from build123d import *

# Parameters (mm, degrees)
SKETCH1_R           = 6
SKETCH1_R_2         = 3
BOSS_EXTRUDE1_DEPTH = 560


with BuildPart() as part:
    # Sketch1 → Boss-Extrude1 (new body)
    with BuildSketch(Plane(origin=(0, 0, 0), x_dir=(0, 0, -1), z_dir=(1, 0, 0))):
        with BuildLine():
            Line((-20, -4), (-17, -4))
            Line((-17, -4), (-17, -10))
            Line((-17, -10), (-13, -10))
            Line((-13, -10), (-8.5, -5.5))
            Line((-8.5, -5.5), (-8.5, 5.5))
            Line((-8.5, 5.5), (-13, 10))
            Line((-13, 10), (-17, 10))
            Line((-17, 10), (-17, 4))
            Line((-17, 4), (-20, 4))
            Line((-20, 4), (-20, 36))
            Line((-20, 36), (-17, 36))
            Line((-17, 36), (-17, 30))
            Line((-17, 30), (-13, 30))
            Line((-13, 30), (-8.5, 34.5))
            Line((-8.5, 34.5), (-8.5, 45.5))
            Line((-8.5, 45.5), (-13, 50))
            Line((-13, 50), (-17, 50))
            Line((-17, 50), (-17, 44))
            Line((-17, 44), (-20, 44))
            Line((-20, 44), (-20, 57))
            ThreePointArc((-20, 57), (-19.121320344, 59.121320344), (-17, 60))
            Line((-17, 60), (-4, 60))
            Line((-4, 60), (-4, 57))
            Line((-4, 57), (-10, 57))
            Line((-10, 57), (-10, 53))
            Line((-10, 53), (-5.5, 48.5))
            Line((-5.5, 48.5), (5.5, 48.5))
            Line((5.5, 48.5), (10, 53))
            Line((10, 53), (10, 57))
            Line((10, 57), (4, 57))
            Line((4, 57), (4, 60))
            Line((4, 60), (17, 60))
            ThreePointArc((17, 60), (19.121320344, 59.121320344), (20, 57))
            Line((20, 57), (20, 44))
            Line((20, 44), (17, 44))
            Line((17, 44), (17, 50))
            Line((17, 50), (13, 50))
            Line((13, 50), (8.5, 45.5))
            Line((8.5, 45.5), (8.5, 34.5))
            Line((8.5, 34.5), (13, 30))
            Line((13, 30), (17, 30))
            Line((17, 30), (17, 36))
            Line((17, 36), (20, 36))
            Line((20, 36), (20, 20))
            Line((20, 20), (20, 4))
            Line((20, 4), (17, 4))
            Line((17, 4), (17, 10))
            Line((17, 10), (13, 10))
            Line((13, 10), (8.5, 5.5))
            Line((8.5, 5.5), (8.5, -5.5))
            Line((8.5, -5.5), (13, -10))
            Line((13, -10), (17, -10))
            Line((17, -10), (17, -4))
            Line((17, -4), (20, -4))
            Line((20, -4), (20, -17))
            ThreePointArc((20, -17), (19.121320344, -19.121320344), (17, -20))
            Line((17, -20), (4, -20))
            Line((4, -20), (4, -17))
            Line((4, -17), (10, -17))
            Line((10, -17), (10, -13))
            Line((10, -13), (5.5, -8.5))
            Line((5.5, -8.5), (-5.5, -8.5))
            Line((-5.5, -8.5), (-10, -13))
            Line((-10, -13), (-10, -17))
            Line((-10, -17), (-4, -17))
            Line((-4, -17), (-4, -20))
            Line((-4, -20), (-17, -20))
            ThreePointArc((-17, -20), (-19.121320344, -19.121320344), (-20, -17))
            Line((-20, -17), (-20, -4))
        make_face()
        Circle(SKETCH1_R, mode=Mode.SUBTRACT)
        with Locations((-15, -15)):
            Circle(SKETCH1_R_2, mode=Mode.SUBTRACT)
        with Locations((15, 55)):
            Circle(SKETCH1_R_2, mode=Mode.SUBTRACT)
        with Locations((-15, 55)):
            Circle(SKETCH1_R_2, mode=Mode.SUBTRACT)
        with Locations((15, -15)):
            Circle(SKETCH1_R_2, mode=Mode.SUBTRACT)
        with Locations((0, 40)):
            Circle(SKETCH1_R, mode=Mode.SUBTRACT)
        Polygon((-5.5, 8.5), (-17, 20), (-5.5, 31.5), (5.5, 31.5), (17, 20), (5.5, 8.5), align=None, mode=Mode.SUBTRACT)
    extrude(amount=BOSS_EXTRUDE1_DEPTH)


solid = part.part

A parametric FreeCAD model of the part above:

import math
import FreeCAD as App
import Part
import Sketcher
from FreeCAD import Vector


def add_polygon(sketch, points):
    """Adds a closed chain of lines whose ends are joined by coincident constraints."""
    first, n = sketch.GeometryCount, len(points)
    for a, b in zip(points, points[1:] + points[:1]):
        sketch.addGeometry(Part.LineSegment(App.Vector(*a, 0), App.Vector(*b, 0)), False)
    for i in range(n):
        sketch.addConstraint(Sketcher.Constraint("Coincident", first + i, 2, first + (i + 1) % n, 1))

doc = App.newDocument("Part")
params = doc.addObject("Spreadsheet::Sheet", "Params")
for row, (alias, value) in enumerate([
    ("sketch1_diameter", "6 mm"),
    ("sketch1_diameter2", "12 mm"),
    ("sketch1_width", "13 mm"),
    ("sketch1_width2", "4 mm"),
    ("sketch1_width3", "11 mm"),
    ("pad1_length", "560 mm"),
], start=1):
    params.set(f"A{row}", alias)
    params.set(f"B{row}", "=" + value)
    params.setAlias(f"B{row}", alias)

body = doc.addObject("PartDesign::Body", "Body")

# Sketch on YZ plane
sketch1 = body.newObject("Sketcher::SketchObject", "Sketch")
sketch1.AttachmentSupport = (doc.getObject("YZ_Plane"), [""])
sketch1.MapMode = "FlatFace"
sketch1.addGeometry(Part.LineSegment(Vector(-4, 17, 0), Vector(-4, 20, 0)), False)  # 0
sketch1.addGeometry(Part.LineSegment(Vector(-4, 20, 0), Vector(-17, 20, 0)), False)  # 1
sketch1.addGeometry(Part.ArcOfCircle(Part.Circle(Vector(-17, 17, 0), Vector(0, 0, 1), 3), math.radians(90), math.radians(180)), False)  # 2
sketch1.addGeometry(Part.LineSegment(Vector(-20, 17, 0), Vector(-20, 4, 0)), False)  # 3
sketch1.addGeometry(Part.LineSegment(Vector(-20, 4, 0), Vector(-17, 4, 0)), False)  # 4
sketch1.addGeometry(Part.LineSegment(Vector(-17, 4, 0), Vector(-17, 10, 0)), False)  # 5
sketch1.addGeometry(Part.LineSegment(Vector(-17, 10, 0), Vector(-13, 10, 0)), False)  # 6
sketch1.addGeometry(Part.LineSegment(Vector(-13, 10, 0), Vector(-8.5, 5.5, 0)), False)  # 7
sketch1.addGeometry(Part.LineSegment(Vector(-8.5, 5.5, 0), Vector(-8.5, -5.5, 0)), False)  # 8
sketch1.addGeometry(Part.LineSegment(Vector(-8.5, -5.5, 0), Vector(-13, -10, 0)), False)  # 9
sketch1.addGeometry(Part.LineSegment(Vector(-13, -10, 0), Vector(-17, -10, 0)), False)  # 10
sketch1.addGeometry(Part.LineSegment(Vector(-17, -10, 0), Vector(-17, -4, 0)), False)  # 11
sketch1.addGeometry(Part.LineSegment(Vector(-17, -4, 0), Vector(-20, -4, 0)), False)  # 12
sketch1.addGeometry(Part.LineSegment(Vector(-20, -4, 0), Vector(-20, -17, 0)), False)  # 13
sketch1.addGeometry(Part.ArcOfCircle(Part.Circle(Vector(-17, -17, 0), Vector(0, 0, 1), 3), math.radians(180), math.radians(270)), False)  # 14
sketch1.addGeometry(Part.LineSegment(Vector(-17, -20, 0), Vector(-4, -20, 0)), False)  # 15
sketch1.addGeometry(Part.LineSegment(Vector(-4, -20, 0), Vector(-4, -17, 0)), False)  # 16
sketch1.addGeometry(Part.LineSegment(Vector(-4, -17, 0), Vector(-10, -17, 0)), False)  # 17
sketch1.addGeometry(Part.LineSegment(Vector(-10, -17, 0), Vector(-10, -13, 0)), False)  # 18
sketch1.addGeometry(Part.LineSegment(Vector(-10, -13, 0), Vector(-5.5, -8.5, 0)), False)  # 19
sketch1.addGeometry(Part.LineSegment(Vector(-5.5, -8.5, 0), Vector(5.5, -8.5, 0)), False)  # 20
sketch1.addGeometry(Part.LineSegment(Vector(5.5, -8.5, 0), Vector(10, -13, 0)), False)  # 21
sketch1.addGeometry(Part.LineSegment(Vector(10, -13, 0), Vector(10, -17, 0)), False)  # 22
sketch1.addGeometry(Part.LineSegment(Vector(10, -17, 0), Vector(4, -17, 0)), False)  # 23
sketch1.addGeometry(Part.LineSegment(Vector(4, -17, 0), Vector(4, -20, 0)), False)  # 24
sketch1.addGeometry(Part.LineSegment(Vector(4, -20, 0), Vector(36, -20, 0)), False)  # 25
sketch1.addGeometry(Part.LineSegment(Vector(36, -20, 0), Vector(36, -17, 0)), False)  # 26
sketch1.addGeometry(Part.LineSegment(Vector(36, -17, 0), Vector(30, -17, 0)), False)  # 27
sketch1.addGeometry(Part.LineSegment(Vector(30, -17, 0), Vector(30, -13, 0)), False)  # 28
sketch1.addGeometry(Part.LineSegment(Vector(30, -13, 0), Vector(34.5, -8.5, 0)), False)  # 29
sketch1.addGeometry(Part.LineSegment(Vector(34.5, -8.5, 0), Vector(45.5, -8.5, 0)), False)  # 30
sketch1.addGeometry(Part.LineSegment(Vector(45.5, -8.5, 0), Vector(50, -13, 0)), False)  # 31
sketch1.addGeometry(Part.LineSegment(Vector(50, -13, 0), Vector(50, -17, 0)), False)  # 32
sketch1.addGeometry(Part.LineSegment(Vector(50, -17, 0), Vector(44, -17, 0)), False)  # 33
sketch1.addGeometry(Part.LineSegment(Vector(44, -17, 0), Vector(44, -20, 0)), False)  # 34
sketch1.addGeometry(Part.LineSegment(Vector(44, -20, 0), Vector(57, -20, 0)), False)  # 35
sketch1.addGeometry(Part.ArcOfCircle(Part.Circle(Vector(57, -17, 0), Vector(0, 0, 1), 3), math.radians(-90), math.radians(0)), False)  # 36
sketch1.addGeometry(Part.LineSegment(Vector(60, -17, 0), Vector(60, -4, 0)), False)  # 37
sketch1.addGeometry(Part.LineSegment(Vector(60, -4, 0), Vector(57, -4, 0)), False)  # 38
sketch1.addGeometry(Part.LineSegment(Vector(57, -4, 0), Vector(57, -10, 0)), False)  # 39
sketch1.addGeometry(Part.LineSegment(Vector(57, -10, 0), Vector(53, -10, 0)), False)  # 40
sketch1.addGeometry(Part.LineSegment(Vector(53, -10, 0), Vector(48.5, -5.5, 0)), False)  # 41
sketch1.addGeometry(Part.LineSegment(Vector(48.5, -5.5, 0), Vector(48.5, 5.5, 0)), False)  # 42
sketch1.addGeometry(Part.LineSegment(Vector(48.5, 5.5, 0), Vector(53, 10, 0)), False)  # 43
sketch1.addGeometry(Part.LineSegment(Vector(53, 10, 0), Vector(57, 10, 0)), False)  # 44
sketch1.addGeometry(Part.LineSegment(Vector(57, 10, 0), Vector(57, 4, 0)), False)  # 45
sketch1.addGeometry(Part.LineSegment(Vector(57, 4, 0), Vector(60, 4, 0)), False)  # 46
sketch1.addGeometry(Part.LineSegment(Vector(60, 4, 0), Vector(60, 17, 0)), False)  # 47
sketch1.addGeometry(Part.ArcOfCircle(Part.Circle(Vector(57, 17, 0), Vector(0, 0, 1), 3), math.radians(0), math.radians(90)), False)  # 48
sketch1.addGeometry(Part.LineSegment(Vector(57, 20, 0), Vector(44, 20, 0)), False)  # 49
sketch1.addGeometry(Part.LineSegment(Vector(44, 20, 0), Vector(44, 17, 0)), False)  # 50
sketch1.addGeometry(Part.LineSegment(Vector(44, 17, 0), Vector(50, 17, 0)), False)  # 51
sketch1.addGeometry(Part.LineSegment(Vector(50, 17, 0), Vector(50, 13, 0)), False)  # 52
sketch1.addGeometry(Part.LineSegment(Vector(50, 13, 0), Vector(45.5, 8.5, 0)), False)  # 53
sketch1.addGeometry(Part.LineSegment(Vector(45.5, 8.5, 0), Vector(34.5, 8.5, 0)), False)  # 54
sketch1.addGeometry(Part.LineSegment(Vector(34.5, 8.5, 0), Vector(30, 13, 0)), False)  # 55
sketch1.addGeometry(Part.LineSegment(Vector(30, 13, 0), Vector(30, 17, 0)), False)  # 56
sketch1.addGeometry(Part.LineSegment(Vector(30, 17, 0), Vector(36, 17, 0)), False)  # 57
sketch1.addGeometry(Part.LineSegment(Vector(36, 17, 0), Vector(36, 20, 0)), False)  # 58
sketch1.addGeometry(Part.LineSegment(Vector(36, 20, 0), Vector(4, 20, 0)), False)  # 59
sketch1.addGeometry(Part.LineSegment(Vector(4, 20, 0), Vector(4, 17, 0)), False)  # 60
sketch1.addGeometry(Part.LineSegment(Vector(4, 17, 0), Vector(10, 17, 0)), False)  # 61
sketch1.addGeometry(Part.LineSegment(Vector(10, 17, 0), Vector(10, 13, 0)), False)  # 62
sketch1.addGeometry(Part.LineSegment(Vector(10, 13, 0), Vector(5.5, 8.5, 0)), False)  # 63
sketch1.addGeometry(Part.LineSegment(Vector(5.5, 8.5, 0), Vector(-5.5, 8.5, 0)), False)  # 64
sketch1.addGeometry(Part.LineSegment(Vector(-5.5, 8.5, 0), Vector(-10, 13, 0)), False)  # 65
sketch1.addGeometry(Part.LineSegment(Vector(-10, 13, 0), Vector(-10, 17, 0)), False)  # 66
sketch1.addGeometry(Part.LineSegment(Vector(-10, 17, 0), Vector(-4, 17, 0)), False)  # 67
sketch1.addGeometry(Part.Circle(Vector(-15, -15, 0), Vector(0, 0, 1), 3), False)  # 68
sketch1.addGeometry(Part.Circle(Vector(0, 0, 0), Vector(0, 0, 1), 6), False)  # 69
sketch1.addGeometry(Part.Circle(Vector(-15, 15, 0), Vector(0, 0, 1), 3), False)  # 70
sketch1.addGeometry(Part.Circle(Vector(55, -15, 0), Vector(0, 0, 1), 3), False)  # 71
add_polygon(sketch1, [(8.5, 5.5), (20, 17), (31.5, 5.5), (31.5, -5.5), (20, -17), (8.5, -5.5)])  # lines 72-77
sketch1.addGeometry(Part.Circle(Vector(40, 0, 0), Vector(0, 0, 1), 6), False)  # 78
sketch1.addGeometry(Part.Circle(Vector(55, 15, 0), Vector(0, 0, 1), 3), False)  # 79
sketch1.addConstraint([
    Sketcher.Constraint("Coincident", 0, 2, 1, 1),
    Sketcher.Constraint("Tangent", 1, 2, 2, 1),
    Sketcher.Constraint("Tangent", 2, 2, 3, 1),
    Sketcher.Constraint("Coincident", 3, 2, 4, 1),
    Sketcher.Constraint("Coincident", 4, 2, 5, 1),
    Sketcher.Constraint("Coincident", 5, 2, 6, 1),
    Sketcher.Constraint("Coincident", 6, 2, 7, 1),
    Sketcher.Constraint("Coincident", 7, 2, 8, 1),
    Sketcher.Constraint("Coincident", 8, 2, 9, 1),
    Sketcher.Constraint("Coincident", 9, 2, 10, 1),
    Sketcher.Constraint("Coincident", 10, 2, 11, 1),
    Sketcher.Constraint("Coincident", 11, 2, 12, 1),
    Sketcher.Constraint("Coincident", 12, 2, 13, 1),
    Sketcher.Constraint("Tangent", 13, 2, 14, 1),
    Sketcher.Constraint("Tangent", 14, 2, 15, 1),
    Sketcher.Constraint("Coincident", 15, 2, 16, 1),
    Sketcher.Constraint("Coincident", 16, 2, 17, 1),
    Sketcher.Constraint("Coincident", 17, 2, 18, 1),
    Sketcher.Constraint("Coincident", 18, 2, 19, 1),
    Sketcher.Constraint("Coincident", 19, 2, 20, 1),
    Sketcher.Constraint("Coincident", 20, 2, 21, 1),
    Sketcher.Constraint("Coincident", 21, 2, 22, 1),
    Sketcher.Constraint("Coincident", 22, 2, 23, 1),
    Sketcher.Constraint("Coincident", 23, 2, 24, 1),
    Sketcher.Constraint("Coincident", 24, 2, 25, 1),
    Sketcher.Constraint("Coincident", 25, 2, 26, 1),
    Sketcher.Constraint("Coincident", 26, 2, 27, 1),
    Sketcher.Constraint("Coincident", 27, 2, 28, 1),
    Sketcher.Constraint("Coincident", 28, 2, 29, 1),
    Sketcher.Constraint("Coincident", 29, 2, 30, 1),
    Sketcher.Constraint("Coincident", 30, 2, 31, 1),
    Sketcher.Constraint("Coincident", 31, 2, 32, 1),
    Sketcher.Constraint("Coincident", 32, 2, 33, 1),
    Sketcher.Constraint("Coincident", 33, 2, 34, 1),
    Sketcher.Constraint("Coincident", 34, 2, 35, 1),
    Sketcher.Constraint("Tangent", 35, 2, 36, 1),
    Sketcher.Constraint("Tangent", 36, 2, 37, 1),
    Sketcher.Constraint("Coincident", 37, 2, 38, 1),
    Sketcher.Constraint("Coincident", 38, 2, 39, 1),
    Sketcher.Constraint("Coincident", 39, 2, 40, 1),
    Sketcher.Constraint("Coincident", 40, 2, 41, 1),
    Sketcher.Constraint("Coincident", 41, 2, 42, 1),
    Sketcher.Constraint("Coincident", 42, 2, 43, 1),
    Sketcher.Constraint("Coincident", 43, 2, 44, 1),
    Sketcher.Constraint("Coincident", 44, 2, 45, 1),
    Sketcher.Constraint("Coincident", 45, 2, 46, 1),
    Sketcher.Constraint("Coincident", 46, 2, 47, 1),
    Sketcher.Constraint("Tangent", 47, 2, 48, 1),
    Sketcher.Constraint("Tangent", 48, 2, 49, 1),
    Sketcher.Constraint("Coincident", 49, 2, 50, 1),
    Sketcher.Constraint("Coincident", 50, 2, 51, 1),
    Sketcher.Constraint("Coincident", 51, 2, 52, 1),
    Sketcher.Constraint("Coincident", 52, 2, 53, 1),
    Sketcher.Constraint("Coincident", 53, 2, 54, 1),
    Sketcher.Constraint("Coincident", 54, 2, 55, 1),
    Sketcher.Constraint("Coincident", 55, 2, 56, 1),
    Sketcher.Constraint("Coincident", 56, 2, 57, 1),
    Sketcher.Constraint("Coincident", 57, 2, 58, 1),
    Sketcher.Constraint("Coincident", 58, 2, 59, 1),
    Sketcher.Constraint("Coincident", 59, 2, 60, 1),
    Sketcher.Constraint("Coincident", 60, 2, 61, 1),
    Sketcher.Constraint("Coincident", 61, 2, 62, 1),
    Sketcher.Constraint("Coincident", 62, 2, 63, 1),
    Sketcher.Constraint("Coincident", 63, 2, 64, 1),
    Sketcher.Constraint("Coincident", 64, 2, 65, 1),
    Sketcher.Constraint("Coincident", 65, 2, 66, 1),
    Sketcher.Constraint("Coincident", 66, 2, 67, 1),
    Sketcher.Constraint("Coincident", 67, 2, 0, 1),
    Sketcher.Constraint("Vertical", 0),
    Sketcher.Constraint("Horizontal", 1),
    Sketcher.Constraint("Vertical", 3),
    Sketcher.Constraint("Horizontal", 4),
    Sketcher.Constraint("Vertical", 5),
    Sketcher.Constraint("Horizontal", 6),
    Sketcher.Constraint("Vertical", 8),
    Sketcher.Constraint("Horizontal", 10),
    Sketcher.Constraint("Vertical", 11),
    Sketcher.Constraint("Horizontal", 12),
    Sketcher.Constraint("Vertical", 13),
    Sketcher.Constraint("Horizontal", 15),
    Sketcher.Constraint("Vertical", 16),
    Sketcher.Constraint("Horizontal", 17),
    Sketcher.Constraint("Vertical", 18),
    Sketcher.Constraint("Horizontal", 20),
    Sketcher.Constraint("Vertical", 22),
    Sketcher.Constraint("Horizontal", 23),
    Sketcher.Constraint("Vertical", 24),
    Sketcher.Constraint("Horizontal", 25),
    Sketcher.Constraint("Vertical", 26),
    Sketcher.Constraint("Horizontal", 27),
    Sketcher.Constraint("Vertical", 28),
    Sketcher.Constraint("Horizontal", 30),
    Sketcher.Constraint("Vertical", 32),
    Sketcher.Constraint("Horizontal", 33),
    Sketcher.Constraint("Vertical", 34),
    Sketcher.Constraint("Horizontal", 35),
    Sketcher.Constraint("Vertical", 37),
    Sketcher.Constraint("Horizontal", 38),
    Sketcher.Constraint("Vertical", 39),
    Sketcher.Constraint("Horizontal", 40),
    Sketcher.Constraint("Vertical", 42),
    Sketcher.Constraint("Horizontal", 44),
    Sketcher.Constraint("Vertical", 45),
    Sketcher.Constraint("Horizontal", 46),
    Sketcher.Constraint("Vertical", 47),
    Sketcher.Constraint("Horizontal", 49),
    Sketcher.Constraint("Vertical", 50),
    Sketcher.Constraint("Horizontal", 51),
    Sketcher.Constraint("Vertical", 52),
    Sketcher.Constraint("Horizontal", 54),
    Sketcher.Constraint("Vertical", 56),
    Sketcher.Constraint("Horizontal", 57),
    Sketcher.Constraint("Vertical", 58),
    Sketcher.Constraint("Horizontal", 59),
    Sketcher.Constraint("Vertical", 60),
    Sketcher.Constraint("Horizontal", 61),
    Sketcher.Constraint("Vertical", 62),
    Sketcher.Constraint("Horizontal", 64),
    Sketcher.Constraint("Vertical", 66),
    Sketcher.Constraint("Horizontal", 67),
    Sketcher.Constraint("Vertical", 74),
    Sketcher.Constraint("Vertical", 77),
    Sketcher.Constraint("Coincident", 69, 3, -1, 1),
    Sketcher.Constraint("Equal", 2, 14),
    Sketcher.Constraint("Equal", 14, 36),
    Sketcher.Constraint("Equal", 36, 48),
    Sketcher.Constraint("Equal", 48, 68),
    Sketcher.Constraint("Equal", 68, 70),
    Sketcher.Constraint("Equal", 70, 71),
    Sketcher.Constraint("Equal", 69, 78),
    Sketcher.Constraint("Equal", 71, 79),
    Sketcher.Constraint("Symmetric", 0, 2, 24, 2, -1, 1),
    Sketcher.Constraint("Symmetric", 15, 2, 59, 2, -1, 1),
    Sketcher.Constraint("Symmetric", 17, 2, 61, 2, -1, 1),
    Sketcher.Constraint("Symmetric", 19, 2, 63, 2, -1, 1),
    Sketcher.Constraint("Symmetric", 21, 2, 65, 2, -1, 1),
    Sketcher.Constraint("Symmetric", 13, 2, 72, 2, -1, 1),
    Sketcher.Constraint("Symmetric", 2, 2, 75, 2, -1, 1),
    Sketcher.Constraint("Symmetric", 7, 2, 76, 2, -1, 1),
    Sketcher.Constraint("Symmetric", 18, 2, 21, 2, -2),
    Sketcher.Constraint("Symmetric", 16, 2, 23, 2, -2),
    Sketcher.Constraint("Symmetric", 2, 2, 72, 2, -2),
    Sketcher.Constraint("Symmetric", 36, 3, 48, 3, -1),
    Sketcher.Constraint("Symmetric", 68, 3, 70, 3, -1),
    Sketcher.Constraint("Symmetric", 71, 3, 79, 3, -1),
    Sketcher.Constraint("Symmetric", 6, 2, 9, 2, -1),
    Sketcher.Constraint("Symmetric", 4, 2, 11, 2, -1),
    Sketcher.Constraint("Symmetric", 40, 2, 43, 2, -1),
    Sketcher.Constraint("Symmetric", 38, 2, 45, 2, -1),
    Sketcher.Constraint("Symmetric", 33, 2, 50, 2, -1),
    Sketcher.Constraint("Symmetric", 31, 2, 52, 2, -1),
    Sketcher.Constraint("Symmetric", 30, 2, 53, 2, -1),
    Sketcher.Constraint("Symmetric", 28, 2, 55, 2, -1),
    Sketcher.Constraint("Symmetric", 26, 2, 57, 2, -1),
    Sketcher.Constraint("PointOnObject", 78, 3, -1),
    Sketcher.Constraint("Perpendicular", 7, 9),
    Sketcher.Constraint("Parallel", 9, 19),
    Sketcher.Constraint("Perpendicular", 19, 21),
    Sketcher.Constraint("Perpendicular", 21, 29),
    Sketcher.Constraint("Perpendicular", 29, 31),
    Sketcher.Constraint("Parallel", 31, 41),
    Sketcher.Constraint("Perpendicular", 41, 43),
    Sketcher.Constraint("Parallel", 43, 53),
    Sketcher.Constraint("Perpendicular", 53, 55),
    Sketcher.Constraint("Perpendicular", 55, 63),
    Sketcher.Constraint("Perpendicular", 63, 65),
    Sketcher.Constraint("Perpendicular", 65, 72),
    Sketcher.Constraint("Perpendicular", 72, 73),
    Sketcher.Constraint("Perpendicular", 73, 75),
    Sketcher.Constraint("Perpendicular", 75, 76),
    Sketcher.Constraint("Horizontal", 14, 3, 36, 3),
    Sketcher.Constraint("Horizontal", 68, 3, 71, 3),
    Sketcher.Constraint("Horizontal", 13, 2, 16, 2),
    Sketcher.Constraint("Horizontal", 23, 2, 26, 2),
    Sketcher.Constraint("Horizontal", 21, 2, 28, 2),
    Sketcher.Constraint("Horizontal", 20, 2, 29, 2),
    Sketcher.Constraint("Horizontal", 28, 2, 31, 2),
    Sketcher.Constraint("Horizontal", 27, 2, 32, 2),
    Sketcher.Constraint("Horizontal", 12, 2, 37, 2),
    Sketcher.Constraint("Horizontal", 10, 2, 39, 2),
    Sketcher.Constraint("Horizontal", 8, 2, 41, 2),
    Sketcher.Constraint("Horizontal", 61, 2, 66, 2),
    Sketcher.Constraint("Horizontal", 42, 2, 73, 2),
    Sketcher.Constraint("Vertical", 1, 2, 4, 2),
    Sketcher.Constraint("Vertical", 35, 2, 38, 2),
    Sketcher.Constraint("Equal", 23, 27),
    Sketcher.Constraint("Equal", 20, 30),
    Sketcher.Constraint("Equal", 27, 33),
    Sketcher.Constraint("Equal", 15, 35),
    Sketcher.Constraint("Equal", 10, 40),
    Sketcher.Constraint("Equal", 49, 3),
    Sketcher.Constraint("Equal", 67, 5),
    Sketcher.Constraint("Equal", 64, 8),
    Sketcher.Constraint("Equal", 44, 18),
    Sketcher.Constraint("Equal", 9, 19),
    Sketcher.Constraint("Diameter", 68, 6.0),
    Sketcher.Constraint("Diameter", 69, 12.0),
    Sketcher.Constraint("DistanceX", 1, 2, 1, 1, 13.0),
    Sketcher.Constraint("DistanceX", 6, 1, 6, 2, 4.0),
    Sketcher.Constraint("DistanceX", 20, 1, 20, 2, 11.0),
    Sketcher.Constraint("DistanceX", 25, 1, 25, 2, 32.0),
    Sketcher.Constraint("DistanceX", 2, 3, -1, 1, 17.0),
    Sketcher.Constraint("DistanceX", 68, 3, -1, 1, 15.0),
    Sketcher.Constraint("DistanceY", 68, 3, -1, 1, 15.0),
    Sketcher.Constraint("DistanceX", -1, 1, 71, 3, 55.0),
    Sketcher.Constraint("DistanceX", -1, 1, 78, 3, 40.0),
])
sketch1.setExpression("Constraints[201]", "Params.sketch1_diameter")
sketch1.setExpression("Constraints[202]", "Params.sketch1_diameter2")
sketch1.setExpression("Constraints[203]", "Params.sketch1_width")
sketch1.setExpression("Constraints[204]", "Params.sketch1_width2")
sketch1.setExpression("Constraints[205]", "Params.sketch1_width3")
pad1 = body.newObject("PartDesign::Pad", "Pad")
pad1.Profile = sketch1
pad1.setExpression("Length", "Params.pad1_length")

doc.recompute()
